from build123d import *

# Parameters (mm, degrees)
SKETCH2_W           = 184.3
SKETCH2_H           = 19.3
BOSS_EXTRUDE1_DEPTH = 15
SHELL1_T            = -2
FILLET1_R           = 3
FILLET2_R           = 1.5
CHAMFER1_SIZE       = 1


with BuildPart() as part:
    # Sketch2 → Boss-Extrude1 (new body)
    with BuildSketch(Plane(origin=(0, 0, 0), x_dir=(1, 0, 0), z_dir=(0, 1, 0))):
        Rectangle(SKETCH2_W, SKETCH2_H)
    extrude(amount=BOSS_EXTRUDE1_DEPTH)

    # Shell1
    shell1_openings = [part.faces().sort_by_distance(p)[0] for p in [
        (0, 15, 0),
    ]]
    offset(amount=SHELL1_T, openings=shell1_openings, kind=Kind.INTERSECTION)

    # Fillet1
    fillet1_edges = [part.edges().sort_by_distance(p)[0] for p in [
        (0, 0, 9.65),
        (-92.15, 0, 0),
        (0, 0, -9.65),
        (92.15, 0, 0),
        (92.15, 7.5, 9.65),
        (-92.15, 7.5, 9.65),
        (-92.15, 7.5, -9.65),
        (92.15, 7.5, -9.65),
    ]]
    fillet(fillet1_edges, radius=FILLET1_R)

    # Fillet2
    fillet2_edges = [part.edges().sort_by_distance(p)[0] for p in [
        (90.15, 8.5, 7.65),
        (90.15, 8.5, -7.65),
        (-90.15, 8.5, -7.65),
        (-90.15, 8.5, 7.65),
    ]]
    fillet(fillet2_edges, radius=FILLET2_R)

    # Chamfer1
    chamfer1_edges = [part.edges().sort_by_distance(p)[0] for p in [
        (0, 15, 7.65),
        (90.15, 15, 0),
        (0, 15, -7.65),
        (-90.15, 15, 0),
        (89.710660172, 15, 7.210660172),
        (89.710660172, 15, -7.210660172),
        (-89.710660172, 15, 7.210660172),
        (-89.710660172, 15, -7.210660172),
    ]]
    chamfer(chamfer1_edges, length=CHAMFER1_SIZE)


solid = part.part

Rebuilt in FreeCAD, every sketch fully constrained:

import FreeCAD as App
import Part
import Sketcher

V = App.Vector
Q = App.Units.Quantity


def edges_at(feature, points):
    """Names of the edges that pass closest to the given points."""
    edges = feature.Shape.Edges
    near = lambda p: min(range(len(edges)), key=lambda i: edges[i].distToShape(Part.Vertex(*p))[0])
    return sorted({f"Edge{near(p) + 1}" for p in points})


def faces_at(feature, points):
    """Names of the faces that lie closest to the given points."""
    faces = feature.Shape.Faces
    near = lambda p: min(range(len(faces)), key=lambda i: faces[i].distToShape(Part.Vertex(*p))[0])
    return sorted({f"Face{near(p) + 1}" for p in points})

doc = App.newDocument("Part")
body = doc.addObject("PartDesign::Body", "Body")

# Sketch on XZ plane
sketch1 = body.newObject("Sketcher::SketchObject", "Sketch")
sketch1.AttachmentSupport = (doc.getObject("XZ_Plane"), [""])
sketch1.MapMode = "FlatFace"
sketch1.addGeometry([
    Part.LineSegment(V(-92, -10, 0), V(-92, 10, 0)),
    Part.LineSegment(V(-92, 10, 0), V(92, 10, 0)),
    Part.LineSegment(V(92, 10, 0), V(92, -10, 0)),
    Part.LineSegment(V(92, -10, 0), V(-92, -10, 0)),
], False)
sketch1.addConstraint([
    Sketcher.Constraint("Coincident", 0, 2, 1, 1),
    Sketcher.Constraint("Coincident", 1, 2, 2, 1),
    Sketcher.Constraint("Coincident", 2, 2, 3, 1),
    Sketcher.Constraint("Coincident", 3, 2, 0, 1),
    Sketcher.Constraint("Vertical", 0),
    Sketcher.Constraint("Horizontal", 1),
    Sketcher.Constraint("Vertical", 2),
    Sketcher.Constraint("Horizontal", 3),
    Sketcher.Constraint("Symmetric", 0, 2, 2, 2, -1, 1),
    Sketcher.Constraint("DistanceX", 1, 1, 1, 2, Q("184.3 mm")),
    Sketcher.Constraint("DistanceY", 0, 1, 0, 2, Q("19.3 mm")),
])
pad1 = body.newObject("PartDesign::Pad", "Pad")
pad1.Profile = sketch1
pad1.Length = 15
pad1.Reversed = True
doc.recompute()

thickness = body.newObject("PartDesign::Thickness", "Thickness")
thickness.Base = (pad1, faces_at(pad1, [(0, 15, 0)]))
thickness.Value = 2
thickness.Reversed = True
thickness.Join = "Intersection"
doc.recompute()

fillet = body.newObject("PartDesign::Fillet", "Fillet")
fillet.Base = (thickness, edges_at(thickness, [
    (0, 0, 9.65),
    (-92.15, 0, 0),
    (0, 0, -9.65),
    (92.15, 0, 0),
    (92.15, 7.5, 9.65),
    (-92.15, 7.5, 9.65),
    (-92.15, 7.5, -9.65),
    (92.15, 7.5, -9.65),
]))
fillet.Radius = 3
doc.recompute()

fillet2 = body.newObject("PartDesign::Fillet", "Fillet001")
fillet2.Base = (fillet, edges_at(fillet, [
    (90.15, 8.5, 7.65),
    (90.15, 8.5, -7.65),
    (-90.15, 8.5, -7.65),
    (-90.15, 8.5, 7.65),
]))
fillet2.Radius = 1.5
doc.recompute()

chamfer = body.newObject("PartDesign::Chamfer", "Chamfer")
chamfer.Base = (fillet2, edges_at(fillet2, [
    (0, 15, 7.65),
    (90.15, 15, 0),
    (0, 15, -7.65),
    (-90.15, 15, 0),
    (89.711, 15, 7.211),
    (89.711, 15, -7.211),
    (-89.711, 15, 7.211),
    (-89.711, 15, -7.211),
]))
chamfer.Size = 1

doc.recompute()
